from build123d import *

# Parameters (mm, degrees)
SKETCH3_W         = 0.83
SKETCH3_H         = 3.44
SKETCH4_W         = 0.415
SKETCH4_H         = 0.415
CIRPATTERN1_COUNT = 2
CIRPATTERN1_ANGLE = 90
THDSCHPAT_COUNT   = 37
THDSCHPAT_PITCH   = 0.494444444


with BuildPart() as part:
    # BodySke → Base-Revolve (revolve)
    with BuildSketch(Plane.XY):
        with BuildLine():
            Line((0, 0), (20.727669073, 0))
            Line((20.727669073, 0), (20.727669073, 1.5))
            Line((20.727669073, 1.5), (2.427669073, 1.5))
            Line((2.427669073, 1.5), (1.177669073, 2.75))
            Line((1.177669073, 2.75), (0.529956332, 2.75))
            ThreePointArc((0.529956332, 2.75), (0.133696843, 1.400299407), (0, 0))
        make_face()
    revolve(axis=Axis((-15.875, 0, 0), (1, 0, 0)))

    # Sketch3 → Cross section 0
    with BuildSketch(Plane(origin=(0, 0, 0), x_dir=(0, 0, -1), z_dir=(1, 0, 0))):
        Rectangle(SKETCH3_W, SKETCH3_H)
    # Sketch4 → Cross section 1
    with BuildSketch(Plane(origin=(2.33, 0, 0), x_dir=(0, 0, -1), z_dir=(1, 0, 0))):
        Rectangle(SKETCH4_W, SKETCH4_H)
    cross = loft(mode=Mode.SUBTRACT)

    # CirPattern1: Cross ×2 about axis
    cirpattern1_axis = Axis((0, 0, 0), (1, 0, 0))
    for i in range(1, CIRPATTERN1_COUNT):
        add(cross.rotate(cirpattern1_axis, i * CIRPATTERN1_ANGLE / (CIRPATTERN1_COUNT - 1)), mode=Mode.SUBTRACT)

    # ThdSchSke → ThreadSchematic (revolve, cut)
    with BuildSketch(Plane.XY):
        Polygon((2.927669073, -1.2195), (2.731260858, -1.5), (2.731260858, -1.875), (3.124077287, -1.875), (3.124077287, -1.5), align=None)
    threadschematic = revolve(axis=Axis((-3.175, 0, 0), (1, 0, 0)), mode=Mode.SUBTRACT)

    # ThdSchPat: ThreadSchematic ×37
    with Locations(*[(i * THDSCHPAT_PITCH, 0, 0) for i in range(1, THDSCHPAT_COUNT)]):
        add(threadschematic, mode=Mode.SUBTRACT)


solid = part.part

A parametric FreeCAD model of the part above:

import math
import FreeCAD as App
import Part
import Sketcher
from FreeCAD import Vector
Q = App.Units.Quantity

doc = App.newDocument("Part")
body = doc.addObject("PartDesign::Body", "Body")

sketch1 = body.newObject("Sketcher::SketchObject", "Sketch")
sketch1.AttachmentSupport = (doc.getObject("XY_Plane"), [""])
sketch1.MapMode = "FlatFace"
sketch1.addGeometry([
    Part.LineSegment(Vector(0, 0, 0), Vector(20.7, 0, 0)),
    Part.LineSegment(Vector(20.7, 0, 0), Vector(20.7, 1.5, 0)),
    Part.LineSegment(Vector(20.7, 1.5, 0), Vector(2.4, 1.5, 0)),
    Part.LineSegment(Vector(2.4, 1.5, 0), Vector(1.2, 2.8, 0)),
    Part.LineSegment(Vector(1.2, 2.8, 0), Vector(0.5, 2.8, 0)),
    Part.ArcOfCircle(Part.Circle(Vector(7.4, 0, 0), Vector(0, 0, 1), 7.4), math.radians(158), math.radians(180)),
], False)
sketch1.addConstraint([
    Sketcher.Constraint("Coincident", 0, 2, 1, 1),
    Sketcher.Constraint("Coincident", 1, 2, 2, 1),
    Sketcher.Constraint("Coincident", 2, 2, 3, 1),
    Sketcher.Constraint("Coincident", 3, 2, 4, 1),
    Sketcher.Constraint("Coincident", 4, 2, 5, 1),
    Sketcher.Constraint("Coincident", 5, 2, 0, 1),
    Sketcher.Constraint("Horizontal", 0),
    Sketcher.Constraint("Vertical", 1),
    Sketcher.Constraint("Horizontal", 2),
    Sketcher.Constraint("Horizontal", 4),
    Sketcher.Constraint("Coincident", 5, 2, -1, 1),
    Sketcher.Constraint("PointOnObject", 5, 3, -1),
    Sketcher.Constraint("Radius", 5, Q("7.4 mm")),
    Sketcher.Constraint("Angle", 3, Q("135 deg")),
    Sketcher.Constraint("DistanceX", 2, 2, 2, 1, Q("18.3 mm")),
    Sketcher.Constraint("DistanceY", 1, 1, 1, 2, Q("1.5 mm")),
    Sketcher.Constraint("DistanceY", -1, 1, 3, 2, Q("2.75 mm")),
    Sketcher.Constraint("DistanceX", 0, 1, 0, 2, Q("20.727669 mm")),
])
revolution = body.newObject("PartDesign::Revolution", "Revolution")
revolution.Profile = sketch1
revolution.ReferenceAxis = (sketch1, ["H_Axis"])
revolution.Angle = 360

sketch2 = body.newObject("Sketcher::SketchObject", "Sketch001")
sketch2.AttachmentSupport = (doc.getObject("YZ_Plane"), [""])
sketch2.MapMode = "FlatFace"
sketch2.addGeometry([
    Part.LineSegment(Vector(1.7, 0.4, 0), Vector(-1.7, 0.4, 0)),
    Part.LineSegment(Vector(-1.7, 0.4, 0), Vector(-1.7, -0.4, 0)),
    Part.LineSegment(Vector(-1.7, -0.4, 0), Vector(1.7, -0.4, 0)),
    Part.LineSegment(Vector(1.7, -0.4, 0), Vector(1.7, 0.4, 0)),
], False)
sketch2.addConstraint([
    Sketcher.Constraint("Coincident", 0, 2, 1, 1),
    Sketcher.Constraint("Coincident", 1, 2, 2, 1),
    Sketcher.Constraint("Coincident", 2, 2, 3, 1),
    Sketcher.Constraint("Coincident", 3, 2, 0, 1),
    Sketcher.Constraint("Horizontal", 0),
    Sketcher.Constraint("Vertical", 1),
    Sketcher.Constraint("Horizontal", 2),
    Sketcher.Constraint("Vertical", 3),
    Sketcher.Constraint("Symmetric", 0, 2, 2, 2, -1, 1),
    Sketcher.Constraint("DistanceX", 0, 2, 0, 1, Q("3.44 mm")),
    Sketcher.Constraint("DistanceY", 1, 2, 1, 1, Q("0.83 mm")),
])

sketch3 = body.newObject("Sketcher::SketchObject", "Sketch002")
sketch3.AttachmentSupport = (doc.getObject("YZ_Plane"), [""])
sketch3.MapMode = "FlatFace"
sketch3.AttachmentOffset = App.Placement(Vector(0, 0, 2.33), App.Rotation())
sketch3.addGeometry([
    Part.LineSegment(Vector(0.21, 0.21, 0), Vector(-0.21, 0.21, 0)),
    Part.LineSegment(Vector(-0.21, 0.21, 0), Vector(-0.21, -0.21, 0)),
    Part.LineSegment(Vector(-0.21, -0.21, 0), Vector(0.21, -0.21, 0)),
    Part.LineSegment(Vector(0.21, -0.21, 0), Vector(0.21, 0.21, 0)),
], False)
sketch3.addConstraint([
    Sketcher.Constraint("Coincident", 0, 2, 1, 1),
    Sketcher.Constraint("Coincident", 1, 2, 2, 1),
    Sketcher.Constraint("Coincident", 2, 2, 3, 1),
    Sketcher.Constraint("Coincident", 3, 2, 0, 1),
    Sketcher.Constraint("Horizontal", 0),
    Sketcher.Constraint("Vertical", 1),
    Sketcher.Constraint("Horizontal", 2),
    Sketcher.Constraint("Vertical", 3),
    Sketcher.Constraint("Symmetric", 0, 2, 2, 2, -1, 1),
    Sketcher.Constraint("Equal", 2, 1),
    Sketcher.Constraint("DistanceX", 0, 2, 0, 1, Q("0.415 mm")),
])

subtractiveloft = body.newObject("PartDesign::SubtractiveLoft", "SubtractiveLoft")
subtractiveloft.Profile = sketch2
subtractiveloft.Sections = [sketch3]
doc.recompute()

polarpattern = body.newObject("PartDesign::PolarPattern", "PolarPattern")
polarpattern.Originals = [subtractiveloft]
polarpattern.Axis = (doc.getObject("X_Axis"), [""])
polarpattern.Angle = 90
polarpattern.Occurrences = 2
body.Tip = polarpattern

sketch4 = body.newObject("Sketcher::SketchObject", "Sketch003")
sketch4.AttachmentSupport = (doc.getObject("XY_Plane"), [""])
sketch4.MapMode = "FlatFace"
sketch4.addGeometry([
    Part.LineSegment(Vector(2.93, -1.22, 0), Vector(2.73, -1.5, 0)),
    Part.LineSegment(Vector(2.73, -1.5, 0), Vector(2.73, -1.88, 0)),
    Part.LineSegment(Vector(2.73, -1.88, 0), Vector(3.12, -1.88, 0)),
    Part.LineSegment(Vector(3.12, -1.88, 0), Vector(3.12, -1.5, 0)),
    Part.LineSegment(Vector(3.12, -1.5, 0), Vector(2.93, -1.22, 0)),
], False)
sketch4.addConstraint([
    Sketcher.Constraint("Coincident", 0, 2, 1, 1),
    Sketcher.Constraint("Coincident", 1, 2, 2, 1),
    Sketcher.Constraint("Coincident", 2, 2, 3, 1),
    Sketcher.Constraint("Coincident", 3, 2, 4, 1),
    Sketcher.Constraint("Coincident", 4, 2, 0, 1),
    Sketcher.Constraint("Vertical", 1),
    Sketcher.Constraint("Horizontal", 2),
    Sketcher.Constraint("Vertical", 3),
    Sketcher.Constraint("Horizontal", 0, 2, 3, 2),
    Sketcher.Constraint("Equal", 0, 4),
    Sketcher.Constraint("Angle", 0, Q("-125 deg")),
    Sketcher.Constraint("DistanceY", 0, 2, -1, 1, Q("1.5 mm")),
    Sketcher.Constraint("DistanceY", 1, 2, 1, 1, Q("0.375 mm")),
    Sketcher.Constraint("DistanceY", 4, 2, -1, 1, Q("1.2195 mm")),
    Sketcher.Constraint("DistanceX", -1, 1, 0, 2, Q("2.731261 mm")),
])
groove = body.newObject("PartDesign::Groove", "Groove")
groove.Profile = sketch4
groove.ReferenceAxis = (sketch4, ["H_Axis"])
groove.Angle = 360
doc.recompute()

linearpattern = body.newObject("PartDesign::LinearPattern", "LinearPattern")
linearpattern.Originals = [groove]
linearpattern.Direction = (doc.getObject("X_Axis"), [""])
linearpattern.Mode = "offset"
linearpattern.Offset = 0.494444
linearpattern.Occurrences = 37
body.Tip = linearpattern

doc.recompute()
